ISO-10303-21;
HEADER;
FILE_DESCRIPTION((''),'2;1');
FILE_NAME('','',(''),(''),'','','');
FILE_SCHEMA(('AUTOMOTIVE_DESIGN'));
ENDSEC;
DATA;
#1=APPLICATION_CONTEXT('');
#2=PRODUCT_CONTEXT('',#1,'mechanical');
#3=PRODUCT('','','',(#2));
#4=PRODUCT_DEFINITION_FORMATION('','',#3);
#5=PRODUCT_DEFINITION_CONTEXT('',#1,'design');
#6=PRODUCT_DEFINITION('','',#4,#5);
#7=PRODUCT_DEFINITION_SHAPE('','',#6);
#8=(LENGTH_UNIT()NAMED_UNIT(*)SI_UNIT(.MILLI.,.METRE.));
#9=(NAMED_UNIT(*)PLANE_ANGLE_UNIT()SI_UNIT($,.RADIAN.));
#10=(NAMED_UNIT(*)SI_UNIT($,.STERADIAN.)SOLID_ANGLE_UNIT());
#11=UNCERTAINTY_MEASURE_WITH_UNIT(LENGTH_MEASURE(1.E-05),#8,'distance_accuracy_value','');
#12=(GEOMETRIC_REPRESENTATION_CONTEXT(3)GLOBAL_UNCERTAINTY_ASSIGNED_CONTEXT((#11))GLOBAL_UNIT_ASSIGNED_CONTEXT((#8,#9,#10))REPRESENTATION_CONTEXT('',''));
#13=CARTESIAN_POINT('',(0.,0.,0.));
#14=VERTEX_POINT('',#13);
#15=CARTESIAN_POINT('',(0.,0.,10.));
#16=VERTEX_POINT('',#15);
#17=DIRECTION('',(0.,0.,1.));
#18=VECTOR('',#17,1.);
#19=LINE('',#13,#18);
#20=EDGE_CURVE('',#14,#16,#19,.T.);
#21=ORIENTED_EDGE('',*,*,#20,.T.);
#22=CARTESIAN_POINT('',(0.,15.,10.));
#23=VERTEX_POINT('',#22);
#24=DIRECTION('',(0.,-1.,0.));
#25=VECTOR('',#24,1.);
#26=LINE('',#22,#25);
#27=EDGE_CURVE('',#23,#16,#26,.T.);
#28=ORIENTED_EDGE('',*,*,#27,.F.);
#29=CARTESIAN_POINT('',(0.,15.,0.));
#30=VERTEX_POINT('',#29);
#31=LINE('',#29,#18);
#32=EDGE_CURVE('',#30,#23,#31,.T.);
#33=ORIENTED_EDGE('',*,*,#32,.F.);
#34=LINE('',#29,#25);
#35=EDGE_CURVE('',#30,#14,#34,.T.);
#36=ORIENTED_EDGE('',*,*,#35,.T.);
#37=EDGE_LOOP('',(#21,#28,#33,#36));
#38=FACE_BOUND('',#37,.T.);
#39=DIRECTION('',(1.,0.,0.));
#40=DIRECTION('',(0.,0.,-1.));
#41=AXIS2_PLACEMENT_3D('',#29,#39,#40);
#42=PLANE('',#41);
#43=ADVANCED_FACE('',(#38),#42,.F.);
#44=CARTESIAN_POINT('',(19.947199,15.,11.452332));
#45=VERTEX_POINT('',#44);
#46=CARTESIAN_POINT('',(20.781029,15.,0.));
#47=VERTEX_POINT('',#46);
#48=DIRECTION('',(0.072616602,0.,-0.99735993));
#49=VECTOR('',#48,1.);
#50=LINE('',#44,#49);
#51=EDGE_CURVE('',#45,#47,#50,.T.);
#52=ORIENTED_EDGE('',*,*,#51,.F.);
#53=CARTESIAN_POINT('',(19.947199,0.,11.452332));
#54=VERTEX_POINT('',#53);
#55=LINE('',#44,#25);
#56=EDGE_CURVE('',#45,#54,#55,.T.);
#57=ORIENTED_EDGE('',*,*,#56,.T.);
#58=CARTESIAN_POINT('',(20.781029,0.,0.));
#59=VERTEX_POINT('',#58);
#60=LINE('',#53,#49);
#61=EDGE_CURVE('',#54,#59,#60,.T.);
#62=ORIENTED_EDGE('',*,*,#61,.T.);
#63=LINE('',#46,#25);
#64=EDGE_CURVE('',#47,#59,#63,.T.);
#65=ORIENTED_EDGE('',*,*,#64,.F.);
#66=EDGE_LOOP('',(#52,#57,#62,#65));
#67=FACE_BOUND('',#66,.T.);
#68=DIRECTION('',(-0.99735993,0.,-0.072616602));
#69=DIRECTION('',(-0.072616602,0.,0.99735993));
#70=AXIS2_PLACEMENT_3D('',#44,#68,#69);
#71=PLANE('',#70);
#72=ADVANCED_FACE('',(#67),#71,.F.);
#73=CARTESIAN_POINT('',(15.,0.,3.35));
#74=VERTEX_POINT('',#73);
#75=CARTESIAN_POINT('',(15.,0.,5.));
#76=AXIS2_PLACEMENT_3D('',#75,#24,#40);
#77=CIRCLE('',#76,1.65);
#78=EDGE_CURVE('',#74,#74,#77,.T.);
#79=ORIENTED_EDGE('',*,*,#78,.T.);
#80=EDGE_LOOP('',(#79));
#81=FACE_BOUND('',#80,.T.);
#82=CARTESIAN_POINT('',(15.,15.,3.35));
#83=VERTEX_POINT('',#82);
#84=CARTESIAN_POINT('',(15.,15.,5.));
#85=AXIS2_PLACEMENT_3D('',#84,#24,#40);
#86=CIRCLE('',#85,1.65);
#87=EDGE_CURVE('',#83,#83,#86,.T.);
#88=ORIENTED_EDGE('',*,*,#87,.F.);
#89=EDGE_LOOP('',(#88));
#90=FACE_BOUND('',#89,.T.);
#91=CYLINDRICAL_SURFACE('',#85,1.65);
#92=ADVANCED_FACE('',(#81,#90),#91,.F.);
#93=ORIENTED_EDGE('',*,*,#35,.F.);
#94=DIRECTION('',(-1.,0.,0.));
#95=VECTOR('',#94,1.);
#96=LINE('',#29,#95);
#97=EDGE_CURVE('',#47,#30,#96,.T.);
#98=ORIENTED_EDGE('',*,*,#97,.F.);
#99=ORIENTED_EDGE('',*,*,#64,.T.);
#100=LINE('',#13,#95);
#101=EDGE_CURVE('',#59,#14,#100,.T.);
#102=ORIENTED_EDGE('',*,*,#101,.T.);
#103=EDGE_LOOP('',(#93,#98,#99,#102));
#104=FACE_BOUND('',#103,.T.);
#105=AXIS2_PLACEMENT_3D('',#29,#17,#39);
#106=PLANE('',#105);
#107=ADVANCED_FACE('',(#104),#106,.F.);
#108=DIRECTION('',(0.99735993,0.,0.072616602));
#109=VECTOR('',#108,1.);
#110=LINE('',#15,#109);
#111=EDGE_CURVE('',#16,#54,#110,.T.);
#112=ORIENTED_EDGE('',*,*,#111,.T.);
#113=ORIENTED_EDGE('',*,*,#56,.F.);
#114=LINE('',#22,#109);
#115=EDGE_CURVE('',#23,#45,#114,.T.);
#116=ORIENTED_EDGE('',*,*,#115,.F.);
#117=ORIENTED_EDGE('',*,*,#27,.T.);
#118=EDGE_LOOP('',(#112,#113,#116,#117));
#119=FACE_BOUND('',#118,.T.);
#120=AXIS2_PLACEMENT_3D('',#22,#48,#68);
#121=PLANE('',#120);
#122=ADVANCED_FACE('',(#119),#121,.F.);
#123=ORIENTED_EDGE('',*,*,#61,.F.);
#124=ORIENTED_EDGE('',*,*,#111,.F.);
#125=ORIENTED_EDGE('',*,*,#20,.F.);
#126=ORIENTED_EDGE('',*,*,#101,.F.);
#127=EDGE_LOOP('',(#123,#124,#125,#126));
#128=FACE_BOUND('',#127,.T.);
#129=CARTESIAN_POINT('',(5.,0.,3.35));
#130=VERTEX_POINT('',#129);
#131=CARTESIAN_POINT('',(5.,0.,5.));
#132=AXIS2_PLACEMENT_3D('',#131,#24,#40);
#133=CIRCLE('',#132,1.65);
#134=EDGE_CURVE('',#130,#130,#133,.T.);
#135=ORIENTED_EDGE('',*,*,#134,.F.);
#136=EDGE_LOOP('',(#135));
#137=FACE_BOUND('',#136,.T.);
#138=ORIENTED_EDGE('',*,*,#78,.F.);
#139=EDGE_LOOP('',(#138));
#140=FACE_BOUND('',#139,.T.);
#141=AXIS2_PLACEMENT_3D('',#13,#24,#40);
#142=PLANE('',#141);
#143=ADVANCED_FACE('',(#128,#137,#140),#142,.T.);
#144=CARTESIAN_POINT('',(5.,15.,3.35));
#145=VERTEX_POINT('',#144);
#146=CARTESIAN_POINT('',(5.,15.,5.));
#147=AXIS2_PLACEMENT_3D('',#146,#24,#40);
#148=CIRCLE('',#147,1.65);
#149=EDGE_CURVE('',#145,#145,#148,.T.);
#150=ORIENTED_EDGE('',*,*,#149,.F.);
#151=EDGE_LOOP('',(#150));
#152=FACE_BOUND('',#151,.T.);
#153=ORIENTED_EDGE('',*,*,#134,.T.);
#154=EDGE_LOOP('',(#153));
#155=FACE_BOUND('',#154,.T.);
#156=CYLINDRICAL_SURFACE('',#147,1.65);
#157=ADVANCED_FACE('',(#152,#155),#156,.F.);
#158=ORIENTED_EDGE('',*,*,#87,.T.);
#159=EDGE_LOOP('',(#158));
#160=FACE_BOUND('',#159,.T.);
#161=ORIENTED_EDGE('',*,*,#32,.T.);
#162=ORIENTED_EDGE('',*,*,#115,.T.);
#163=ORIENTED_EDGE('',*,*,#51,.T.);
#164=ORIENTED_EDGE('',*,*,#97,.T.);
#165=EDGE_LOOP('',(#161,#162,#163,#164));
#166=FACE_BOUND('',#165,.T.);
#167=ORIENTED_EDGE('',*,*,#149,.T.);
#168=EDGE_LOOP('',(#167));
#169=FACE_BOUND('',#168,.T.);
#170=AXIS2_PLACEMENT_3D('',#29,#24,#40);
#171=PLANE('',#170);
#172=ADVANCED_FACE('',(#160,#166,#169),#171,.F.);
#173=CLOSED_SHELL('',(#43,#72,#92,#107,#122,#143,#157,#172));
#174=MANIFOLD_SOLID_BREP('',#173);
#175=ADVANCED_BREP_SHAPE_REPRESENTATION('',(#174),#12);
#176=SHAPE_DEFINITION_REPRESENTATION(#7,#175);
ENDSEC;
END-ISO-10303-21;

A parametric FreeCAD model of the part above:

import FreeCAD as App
import Part
import Sketcher


def add_polygon(sketch, points):
    """Adds a closed chain of lines whose ends are joined by coincident constraints."""
    first, n = sketch.GeometryCount, len(points)
    for a, b in zip(points, points[1:] + points[:1]):
        sketch.addGeometry(Part.LineSegment(App.Vector(*a, 0), App.Vector(*b, 0)), False)
    for i in range(n):
        sketch.addConstraint(Sketcher.Constraint("Coincident", first + i, 2, first + (i + 1) % n, 1))

doc = App.newDocument("Part")
body = doc.addObject("PartDesign::Body", "Body")

sketch1 = body.newObject("Sketcher::SketchObject", "Sketch")
sketch1.AttachmentSupport = (doc.getObject("XZ_Plane"), [""])
sketch1.MapMode = "FlatFace"
add_polygon(sketch1, [(0, 0), (0, 10), (20, 11), (21, 0)])
sketch1.addConstraint([
    Sketcher.Constraint("Vertical", 0),
    Sketcher.Constraint("Horizontal", 3),
    Sketcher.Constraint("Coincident", 3, 2, -1, 1),
    Sketcher.Constraint("Perpendicular", 1, 2),
    Sketcher.Constraint("DistanceY", 0, 1, 0, 2, 10.0),
    Sketcher.Constraint("Distance", 1, 20.0),
    Sketcher.Constraint("DistanceX", 3, 2, 3, 1, 20.781029),
])
pad1 = body.newObject("PartDesign::Pad", "Pad")
pad1.Profile = sketch1
pad1.Length = 15
pad1.Reversed = True

sketch2 = body.newObject("Sketcher::SketchObject", "Sketch001")
sketch2.AttachmentSupport = (doc.getObject("XZ_Plane"), [""])
sketch2.MapMode = "FlatFace"
sketch2.addGeometry([
    Part.Circle(App.Vector(5, 5, 0), App.Vector(0, 0, 1), 1.4),
    Part.Circle(App.Vector(15, 5, 0), App.Vector(0, 0, 1), 1.4),
], False)
sketch2.addConstraint([
    Sketcher.Constraint("Equal", 0, 1),
    Sketcher.Constraint("Horizontal", 0, 3, 1, 3),
    Sketcher.Constraint("Diameter", 0, 2.9),
    Sketcher.Constraint("DistanceX", -1, 1, 0, 3, 5.0),
    Sketcher.Constraint("DistanceY", -1, 1, 0, 3, 5.0),
    Sketcher.Constraint("DistanceX", -1, 1, 1, 3, 15.0),
])
pocket1 = body.newObject("PartDesign::Pocket", "Pocket")
pocket1.Profile = sketch2
pocket1.Type = "ThroughAll"

sketch3 = body.newObject("Sketcher::SketchObject", "Sketch002")
sketch3.AttachmentSupport = (doc.getObject("XZ_Plane"), [""])
sketch3.MapMode = "FlatFace"
sketch3.addGeometry([
    Part.Circle(App.Vector(5, 5, 0), App.Vector(0, 0, 1), 1.6),
    Part.Circle(App.Vector(15, 5, 0), App.Vector(0, 0, 1), 1.6),
], False)
sketch3.addConstraint([
    Sketcher.Constraint("Equal", 0, 1),
    Sketcher.Constraint("Horizontal", 0, 3, 1, 3),
    Sketcher.Constraint("Diameter", 0, 3.3),
    Sketcher.Constraint("DistanceX", -1, 1, 0, 3, 5.0),
    Sketcher.Constraint("DistanceY", -1, 1, 0, 3, 5.0),
    Sketcher.Constraint("DistanceX", -1, 1, 1, 3, 15.0),
])
pocket2 = body.newObject("PartDesign::Pocket", "Pocket001")
pocket2.Profile = sketch3
pocket2.Type = "ThroughAll"

doc.recompute()
